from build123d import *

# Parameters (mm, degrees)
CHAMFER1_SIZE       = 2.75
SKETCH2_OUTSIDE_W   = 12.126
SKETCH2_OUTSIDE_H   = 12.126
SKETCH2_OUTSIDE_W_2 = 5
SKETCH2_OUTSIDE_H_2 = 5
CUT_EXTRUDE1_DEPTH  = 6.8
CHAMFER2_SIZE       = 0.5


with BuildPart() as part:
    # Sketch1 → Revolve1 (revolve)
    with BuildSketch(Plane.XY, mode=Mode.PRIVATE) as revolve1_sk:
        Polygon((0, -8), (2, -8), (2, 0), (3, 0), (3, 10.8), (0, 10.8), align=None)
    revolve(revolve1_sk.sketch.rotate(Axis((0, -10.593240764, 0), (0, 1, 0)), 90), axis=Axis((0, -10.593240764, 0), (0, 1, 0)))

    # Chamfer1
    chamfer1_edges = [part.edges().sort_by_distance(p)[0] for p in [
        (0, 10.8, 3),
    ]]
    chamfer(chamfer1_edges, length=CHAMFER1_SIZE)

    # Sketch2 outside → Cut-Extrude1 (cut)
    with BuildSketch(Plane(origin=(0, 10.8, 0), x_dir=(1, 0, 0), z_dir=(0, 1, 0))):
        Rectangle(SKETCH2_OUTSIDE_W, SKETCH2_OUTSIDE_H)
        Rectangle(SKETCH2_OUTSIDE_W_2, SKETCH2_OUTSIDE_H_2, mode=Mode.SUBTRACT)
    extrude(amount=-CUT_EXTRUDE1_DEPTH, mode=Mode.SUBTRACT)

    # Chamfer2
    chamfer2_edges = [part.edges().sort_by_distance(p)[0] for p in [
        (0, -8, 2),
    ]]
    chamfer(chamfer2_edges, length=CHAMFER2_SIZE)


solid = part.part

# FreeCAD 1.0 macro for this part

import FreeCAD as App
import Part
import Sketcher

V = App.Vector


def edges_at(feature, points):
    """Names of the edges that pass closest to the given points."""
    edges = feature.Shape.Edges
    near = lambda p: min(range(len(edges)), key=lambda i: edges[i].distToShape(Part.Vertex(*p))[0])
    return sorted({f"Edge{near(p) + 1}" for p in points})

doc = App.newDocument("Part")
params = doc.addObject("Spreadsheet::Sheet", "Params")
for row, (alias, value) in enumerate([
    ("sketch1_width", "2 mm"),
    ("sketch1_width2", "1 mm"),
    ("sketch1_height", "8 mm"),
    ("sketch1_height2", "10.8 mm"),
    ("revolution_angle", "360 deg"),
    ("chamfer_size", "2.75 mm"),
    ("sketch2_width", "5 mm"),
    ("pocket1_length", "6.8 mm"),
    ("chamfer2_size", "0.5 mm"),
], start=1):
    params.set(f"A{row}", alias)
    params.set(f"B{row}", "=" + value)
    params.setAlias(f"B{row}", alias)

body = doc.addObject("PartDesign::Body", "Body")

sketch1 = body.newObject("Sketcher::SketchObject", "Sketch")
sketch1.AttachmentSupport = (doc.getObject("XY_Plane"), [""])
sketch1.MapMode = "FlatFace"
sketch1.addGeometry([
    Part.LineSegment(V(0, -8, 0), V(2, -8, 0)),
    Part.LineSegment(V(2, -8, 0), V(2, 0, 0)),
    Part.LineSegment(V(2, 0, 0), V(3, 0, 0)),
    Part.LineSegment(V(3, 0, 0), V(3, 10.8, 0)),
    Part.LineSegment(V(3, 10.8, 0), V(0, 10.8, 0)),
    Part.LineSegment(V(0, 10.8, 0), V(0, -8, 0)),
], False)
sketch1.addConstraint([
    Sketcher.Constraint("Coincident", 0, 2, 1, 1),
    Sketcher.Constraint("Coincident", 1, 2, 2, 1),
    Sketcher.Constraint("Coincident", 2, 2, 3, 1),
    Sketcher.Constraint("Coincident", 3, 2, 4, 1),
    Sketcher.Constraint("Coincident", 4, 2, 5, 1),
    Sketcher.Constraint("Coincident", 5, 2, 0, 1),
    Sketcher.Constraint("Horizontal", 0),
    Sketcher.Constraint("Vertical", 1),
    Sketcher.Constraint("Horizontal", 2),
    Sketcher.Constraint("Vertical", 3),
    Sketcher.Constraint("Horizontal", 4),
    Sketcher.Constraint("Vertical", 5),
    Sketcher.Constraint("PointOnObject", 1, 2, -1),
    Sketcher.Constraint("PointOnObject", 4, 2, -2),
    Sketcher.Constraint("DistanceX", 0, 1, 0, 2, 2.0),
    Sketcher.Constraint("DistanceX", 2, 1, 2, 2, 1.0),
    Sketcher.Constraint("DistanceY", 1, 1, 1, 2, 8.0),
    Sketcher.Constraint("DistanceY", 3, 1, 3, 2, 10.8),
])
sketch1.setExpression("Constraints[14]", "Params.sketch1_width")
sketch1.setExpression("Constraints[15]", "Params.sketch1_width2")
sketch1.setExpression("Constraints[16]", "Params.sketch1_height")
sketch1.setExpression("Constraints[17]", "Params.sketch1_height2")
revolution = body.newObject("PartDesign::Revolution", "Revolution")
revolution.Profile = sketch1
revolution.ReferenceAxis = (sketch1, ["V_Axis"])
revolution.setExpression("Angle", "Params.revolution_angle")
doc.recompute()

chamfer = body.newObject("PartDesign::Chamfer", "Chamfer")
chamfer.Base = (revolution, edges_at(revolution, [(0, 10.8, 3)]))
chamfer.setExpression("Size", "Params.chamfer_size")

sketch2 = body.newObject("Sketcher::SketchObject", "Sketch001")
sketch2.AttachmentSupport = (doc.getObject("XZ_Plane"), [""])
sketch2.MapMode = "FlatFace"
sketch2.AttachmentOffset = App.Placement(V(0, 0, -10.8), App.Rotation())
sketch2.addGeometry([
    Part.LineSegment(V(-6, -6, 0), V(-6, 6, 0)),
    Part.LineSegment(V(-6, 6, 0), V(6, 6, 0)),
    Part.LineSegment(V(6, 6, 0), V(6, -6, 0)),
    Part.LineSegment(V(6, -6, 0), V(-6, -6, 0)),
    Part.LineSegment(V(2, 2, 0), V(-2, 2, 0)),
    Part.LineSegment(V(-2, 2, 0), V(-2, -2, 0)),
    Part.LineSegment(V(-2, -2, 0), V(2, -2, 0)),
    Part.LineSegment(V(2, -2, 0), V(2, 2, 0)),
], False)
sketch2.addConstraint([
    Sketcher.Constraint("Coincident", 0, 2, 1, 1),
    Sketcher.Constraint("Coincident", 1, 2, 2, 1),
    Sketcher.Constraint("Coincident", 2, 2, 3, 1),
    Sketcher.Constraint("Coincident", 3, 2, 0, 1),
    Sketcher.Constraint("Coincident", 4, 2, 5, 1),
    Sketcher.Constraint("Coincident", 5, 2, 6, 1),
    Sketcher.Constraint("Coincident", 6, 2, 7, 1),
    Sketcher.Constraint("Coincident", 7, 2, 4, 1),
    Sketcher.Constraint("Vertical", 0),
    Sketcher.Constraint("Horizontal", 1),
    Sketcher.Constraint("Vertical", 2),
    Sketcher.Constraint("Horizontal", 3),
    Sketcher.Constraint("Horizontal", 4),
    Sketcher.Constraint("Vertical", 5),
    Sketcher.Constraint("Horizontal", 6),
    Sketcher.Constraint("Vertical", 7),
    Sketcher.Constraint("Symmetric", 0, 2, 2, 2, -1, 1),
    Sketcher.Constraint("Symmetric", 4, 2, 6, 2, -1, 1),
    Sketcher.Constraint("Equal", 3, 0),
    Sketcher.Constraint("Equal", 6, 5),
    Sketcher.Constraint("DistanceX", 4, 2, 4, 1, 5.0),
    Sketcher.Constraint("DistanceX", 1, 1, 1, 2, 12.126),
])
sketch2.setExpression("Constraints[20]", "Params.sketch2_width")
pocket1 = body.newObject("PartDesign::Pocket", "Pocket")
pocket1.Profile = sketch2
pocket1.setExpression("Length", "Params.pocket1_length")
pocket1.Reversed = True
doc.recompute()

chamfer2 = body.newObject("PartDesign::Chamfer", "Chamfer001")
chamfer2.Base = (pocket1, edges_at(pocket1, [(0, -8, 2)]))
chamfer2.setExpression("Size", "Params.chamfer2_size")

doc.recompute()
